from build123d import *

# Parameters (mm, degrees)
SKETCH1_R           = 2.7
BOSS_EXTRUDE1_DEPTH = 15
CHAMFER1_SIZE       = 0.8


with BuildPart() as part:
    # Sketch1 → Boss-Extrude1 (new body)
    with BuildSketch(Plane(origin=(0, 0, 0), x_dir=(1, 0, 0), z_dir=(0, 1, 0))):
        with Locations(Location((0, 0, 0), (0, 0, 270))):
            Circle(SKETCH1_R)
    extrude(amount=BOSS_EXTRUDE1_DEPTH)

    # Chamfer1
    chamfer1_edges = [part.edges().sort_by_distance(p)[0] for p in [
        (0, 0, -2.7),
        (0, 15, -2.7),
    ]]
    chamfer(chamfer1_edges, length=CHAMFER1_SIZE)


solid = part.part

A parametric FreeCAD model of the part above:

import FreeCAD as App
import Part
import Sketcher

V = App.Vector
Q = App.Units.Quantity


def edges_at(feature, points):
    """Names of the edges that pass closest to the given points."""
    edges = feature.Shape.Edges
    near = lambda p: min(range(len(edges)), key=lambda i: edges[i].distToShape(Part.Vertex(*p))[0])
    return sorted({f"Edge{near(p) + 1}" for p in points})

doc = App.newDocument("Part")
body = doc.addObject("PartDesign::Body", "Body")

sketch1 = doc.addObject("Sketcher::SketchObject", "Sketch")
body.addObject(sketch1)
sketch1.AttachmentSupport = (doc.XZ_Plane, [""])
sketch1.MapMode = "FlatFace"
sketch1.addGeometry(Part.Circle(V(0, 0, 0), V(0, 0, 1), 2.7), False)
sketch1.addConstraint(Sketcher.Constraint("Coincident", 0, 3, -1, 1))
sketch1.addConstraint(Sketcher.Constraint("Diameter", 0, Q("5.4 mm")))
pad1 = doc.addObject("PartDesign::Pad", "Pad")
body.addObject(pad1)
pad1.Profile = sketch1
pad1.Length = 15
pad1.Reversed = True
doc.recompute()

chamfer = doc.addObject("PartDesign::Chamfer", "Chamfer")
body.addObject(chamfer)
chamfer.Base = (pad1, edges_at(pad1, [(0, 0, -2.7), (0, 15, -2.7)]))
chamfer.Size = 0.8

doc.recompute()
